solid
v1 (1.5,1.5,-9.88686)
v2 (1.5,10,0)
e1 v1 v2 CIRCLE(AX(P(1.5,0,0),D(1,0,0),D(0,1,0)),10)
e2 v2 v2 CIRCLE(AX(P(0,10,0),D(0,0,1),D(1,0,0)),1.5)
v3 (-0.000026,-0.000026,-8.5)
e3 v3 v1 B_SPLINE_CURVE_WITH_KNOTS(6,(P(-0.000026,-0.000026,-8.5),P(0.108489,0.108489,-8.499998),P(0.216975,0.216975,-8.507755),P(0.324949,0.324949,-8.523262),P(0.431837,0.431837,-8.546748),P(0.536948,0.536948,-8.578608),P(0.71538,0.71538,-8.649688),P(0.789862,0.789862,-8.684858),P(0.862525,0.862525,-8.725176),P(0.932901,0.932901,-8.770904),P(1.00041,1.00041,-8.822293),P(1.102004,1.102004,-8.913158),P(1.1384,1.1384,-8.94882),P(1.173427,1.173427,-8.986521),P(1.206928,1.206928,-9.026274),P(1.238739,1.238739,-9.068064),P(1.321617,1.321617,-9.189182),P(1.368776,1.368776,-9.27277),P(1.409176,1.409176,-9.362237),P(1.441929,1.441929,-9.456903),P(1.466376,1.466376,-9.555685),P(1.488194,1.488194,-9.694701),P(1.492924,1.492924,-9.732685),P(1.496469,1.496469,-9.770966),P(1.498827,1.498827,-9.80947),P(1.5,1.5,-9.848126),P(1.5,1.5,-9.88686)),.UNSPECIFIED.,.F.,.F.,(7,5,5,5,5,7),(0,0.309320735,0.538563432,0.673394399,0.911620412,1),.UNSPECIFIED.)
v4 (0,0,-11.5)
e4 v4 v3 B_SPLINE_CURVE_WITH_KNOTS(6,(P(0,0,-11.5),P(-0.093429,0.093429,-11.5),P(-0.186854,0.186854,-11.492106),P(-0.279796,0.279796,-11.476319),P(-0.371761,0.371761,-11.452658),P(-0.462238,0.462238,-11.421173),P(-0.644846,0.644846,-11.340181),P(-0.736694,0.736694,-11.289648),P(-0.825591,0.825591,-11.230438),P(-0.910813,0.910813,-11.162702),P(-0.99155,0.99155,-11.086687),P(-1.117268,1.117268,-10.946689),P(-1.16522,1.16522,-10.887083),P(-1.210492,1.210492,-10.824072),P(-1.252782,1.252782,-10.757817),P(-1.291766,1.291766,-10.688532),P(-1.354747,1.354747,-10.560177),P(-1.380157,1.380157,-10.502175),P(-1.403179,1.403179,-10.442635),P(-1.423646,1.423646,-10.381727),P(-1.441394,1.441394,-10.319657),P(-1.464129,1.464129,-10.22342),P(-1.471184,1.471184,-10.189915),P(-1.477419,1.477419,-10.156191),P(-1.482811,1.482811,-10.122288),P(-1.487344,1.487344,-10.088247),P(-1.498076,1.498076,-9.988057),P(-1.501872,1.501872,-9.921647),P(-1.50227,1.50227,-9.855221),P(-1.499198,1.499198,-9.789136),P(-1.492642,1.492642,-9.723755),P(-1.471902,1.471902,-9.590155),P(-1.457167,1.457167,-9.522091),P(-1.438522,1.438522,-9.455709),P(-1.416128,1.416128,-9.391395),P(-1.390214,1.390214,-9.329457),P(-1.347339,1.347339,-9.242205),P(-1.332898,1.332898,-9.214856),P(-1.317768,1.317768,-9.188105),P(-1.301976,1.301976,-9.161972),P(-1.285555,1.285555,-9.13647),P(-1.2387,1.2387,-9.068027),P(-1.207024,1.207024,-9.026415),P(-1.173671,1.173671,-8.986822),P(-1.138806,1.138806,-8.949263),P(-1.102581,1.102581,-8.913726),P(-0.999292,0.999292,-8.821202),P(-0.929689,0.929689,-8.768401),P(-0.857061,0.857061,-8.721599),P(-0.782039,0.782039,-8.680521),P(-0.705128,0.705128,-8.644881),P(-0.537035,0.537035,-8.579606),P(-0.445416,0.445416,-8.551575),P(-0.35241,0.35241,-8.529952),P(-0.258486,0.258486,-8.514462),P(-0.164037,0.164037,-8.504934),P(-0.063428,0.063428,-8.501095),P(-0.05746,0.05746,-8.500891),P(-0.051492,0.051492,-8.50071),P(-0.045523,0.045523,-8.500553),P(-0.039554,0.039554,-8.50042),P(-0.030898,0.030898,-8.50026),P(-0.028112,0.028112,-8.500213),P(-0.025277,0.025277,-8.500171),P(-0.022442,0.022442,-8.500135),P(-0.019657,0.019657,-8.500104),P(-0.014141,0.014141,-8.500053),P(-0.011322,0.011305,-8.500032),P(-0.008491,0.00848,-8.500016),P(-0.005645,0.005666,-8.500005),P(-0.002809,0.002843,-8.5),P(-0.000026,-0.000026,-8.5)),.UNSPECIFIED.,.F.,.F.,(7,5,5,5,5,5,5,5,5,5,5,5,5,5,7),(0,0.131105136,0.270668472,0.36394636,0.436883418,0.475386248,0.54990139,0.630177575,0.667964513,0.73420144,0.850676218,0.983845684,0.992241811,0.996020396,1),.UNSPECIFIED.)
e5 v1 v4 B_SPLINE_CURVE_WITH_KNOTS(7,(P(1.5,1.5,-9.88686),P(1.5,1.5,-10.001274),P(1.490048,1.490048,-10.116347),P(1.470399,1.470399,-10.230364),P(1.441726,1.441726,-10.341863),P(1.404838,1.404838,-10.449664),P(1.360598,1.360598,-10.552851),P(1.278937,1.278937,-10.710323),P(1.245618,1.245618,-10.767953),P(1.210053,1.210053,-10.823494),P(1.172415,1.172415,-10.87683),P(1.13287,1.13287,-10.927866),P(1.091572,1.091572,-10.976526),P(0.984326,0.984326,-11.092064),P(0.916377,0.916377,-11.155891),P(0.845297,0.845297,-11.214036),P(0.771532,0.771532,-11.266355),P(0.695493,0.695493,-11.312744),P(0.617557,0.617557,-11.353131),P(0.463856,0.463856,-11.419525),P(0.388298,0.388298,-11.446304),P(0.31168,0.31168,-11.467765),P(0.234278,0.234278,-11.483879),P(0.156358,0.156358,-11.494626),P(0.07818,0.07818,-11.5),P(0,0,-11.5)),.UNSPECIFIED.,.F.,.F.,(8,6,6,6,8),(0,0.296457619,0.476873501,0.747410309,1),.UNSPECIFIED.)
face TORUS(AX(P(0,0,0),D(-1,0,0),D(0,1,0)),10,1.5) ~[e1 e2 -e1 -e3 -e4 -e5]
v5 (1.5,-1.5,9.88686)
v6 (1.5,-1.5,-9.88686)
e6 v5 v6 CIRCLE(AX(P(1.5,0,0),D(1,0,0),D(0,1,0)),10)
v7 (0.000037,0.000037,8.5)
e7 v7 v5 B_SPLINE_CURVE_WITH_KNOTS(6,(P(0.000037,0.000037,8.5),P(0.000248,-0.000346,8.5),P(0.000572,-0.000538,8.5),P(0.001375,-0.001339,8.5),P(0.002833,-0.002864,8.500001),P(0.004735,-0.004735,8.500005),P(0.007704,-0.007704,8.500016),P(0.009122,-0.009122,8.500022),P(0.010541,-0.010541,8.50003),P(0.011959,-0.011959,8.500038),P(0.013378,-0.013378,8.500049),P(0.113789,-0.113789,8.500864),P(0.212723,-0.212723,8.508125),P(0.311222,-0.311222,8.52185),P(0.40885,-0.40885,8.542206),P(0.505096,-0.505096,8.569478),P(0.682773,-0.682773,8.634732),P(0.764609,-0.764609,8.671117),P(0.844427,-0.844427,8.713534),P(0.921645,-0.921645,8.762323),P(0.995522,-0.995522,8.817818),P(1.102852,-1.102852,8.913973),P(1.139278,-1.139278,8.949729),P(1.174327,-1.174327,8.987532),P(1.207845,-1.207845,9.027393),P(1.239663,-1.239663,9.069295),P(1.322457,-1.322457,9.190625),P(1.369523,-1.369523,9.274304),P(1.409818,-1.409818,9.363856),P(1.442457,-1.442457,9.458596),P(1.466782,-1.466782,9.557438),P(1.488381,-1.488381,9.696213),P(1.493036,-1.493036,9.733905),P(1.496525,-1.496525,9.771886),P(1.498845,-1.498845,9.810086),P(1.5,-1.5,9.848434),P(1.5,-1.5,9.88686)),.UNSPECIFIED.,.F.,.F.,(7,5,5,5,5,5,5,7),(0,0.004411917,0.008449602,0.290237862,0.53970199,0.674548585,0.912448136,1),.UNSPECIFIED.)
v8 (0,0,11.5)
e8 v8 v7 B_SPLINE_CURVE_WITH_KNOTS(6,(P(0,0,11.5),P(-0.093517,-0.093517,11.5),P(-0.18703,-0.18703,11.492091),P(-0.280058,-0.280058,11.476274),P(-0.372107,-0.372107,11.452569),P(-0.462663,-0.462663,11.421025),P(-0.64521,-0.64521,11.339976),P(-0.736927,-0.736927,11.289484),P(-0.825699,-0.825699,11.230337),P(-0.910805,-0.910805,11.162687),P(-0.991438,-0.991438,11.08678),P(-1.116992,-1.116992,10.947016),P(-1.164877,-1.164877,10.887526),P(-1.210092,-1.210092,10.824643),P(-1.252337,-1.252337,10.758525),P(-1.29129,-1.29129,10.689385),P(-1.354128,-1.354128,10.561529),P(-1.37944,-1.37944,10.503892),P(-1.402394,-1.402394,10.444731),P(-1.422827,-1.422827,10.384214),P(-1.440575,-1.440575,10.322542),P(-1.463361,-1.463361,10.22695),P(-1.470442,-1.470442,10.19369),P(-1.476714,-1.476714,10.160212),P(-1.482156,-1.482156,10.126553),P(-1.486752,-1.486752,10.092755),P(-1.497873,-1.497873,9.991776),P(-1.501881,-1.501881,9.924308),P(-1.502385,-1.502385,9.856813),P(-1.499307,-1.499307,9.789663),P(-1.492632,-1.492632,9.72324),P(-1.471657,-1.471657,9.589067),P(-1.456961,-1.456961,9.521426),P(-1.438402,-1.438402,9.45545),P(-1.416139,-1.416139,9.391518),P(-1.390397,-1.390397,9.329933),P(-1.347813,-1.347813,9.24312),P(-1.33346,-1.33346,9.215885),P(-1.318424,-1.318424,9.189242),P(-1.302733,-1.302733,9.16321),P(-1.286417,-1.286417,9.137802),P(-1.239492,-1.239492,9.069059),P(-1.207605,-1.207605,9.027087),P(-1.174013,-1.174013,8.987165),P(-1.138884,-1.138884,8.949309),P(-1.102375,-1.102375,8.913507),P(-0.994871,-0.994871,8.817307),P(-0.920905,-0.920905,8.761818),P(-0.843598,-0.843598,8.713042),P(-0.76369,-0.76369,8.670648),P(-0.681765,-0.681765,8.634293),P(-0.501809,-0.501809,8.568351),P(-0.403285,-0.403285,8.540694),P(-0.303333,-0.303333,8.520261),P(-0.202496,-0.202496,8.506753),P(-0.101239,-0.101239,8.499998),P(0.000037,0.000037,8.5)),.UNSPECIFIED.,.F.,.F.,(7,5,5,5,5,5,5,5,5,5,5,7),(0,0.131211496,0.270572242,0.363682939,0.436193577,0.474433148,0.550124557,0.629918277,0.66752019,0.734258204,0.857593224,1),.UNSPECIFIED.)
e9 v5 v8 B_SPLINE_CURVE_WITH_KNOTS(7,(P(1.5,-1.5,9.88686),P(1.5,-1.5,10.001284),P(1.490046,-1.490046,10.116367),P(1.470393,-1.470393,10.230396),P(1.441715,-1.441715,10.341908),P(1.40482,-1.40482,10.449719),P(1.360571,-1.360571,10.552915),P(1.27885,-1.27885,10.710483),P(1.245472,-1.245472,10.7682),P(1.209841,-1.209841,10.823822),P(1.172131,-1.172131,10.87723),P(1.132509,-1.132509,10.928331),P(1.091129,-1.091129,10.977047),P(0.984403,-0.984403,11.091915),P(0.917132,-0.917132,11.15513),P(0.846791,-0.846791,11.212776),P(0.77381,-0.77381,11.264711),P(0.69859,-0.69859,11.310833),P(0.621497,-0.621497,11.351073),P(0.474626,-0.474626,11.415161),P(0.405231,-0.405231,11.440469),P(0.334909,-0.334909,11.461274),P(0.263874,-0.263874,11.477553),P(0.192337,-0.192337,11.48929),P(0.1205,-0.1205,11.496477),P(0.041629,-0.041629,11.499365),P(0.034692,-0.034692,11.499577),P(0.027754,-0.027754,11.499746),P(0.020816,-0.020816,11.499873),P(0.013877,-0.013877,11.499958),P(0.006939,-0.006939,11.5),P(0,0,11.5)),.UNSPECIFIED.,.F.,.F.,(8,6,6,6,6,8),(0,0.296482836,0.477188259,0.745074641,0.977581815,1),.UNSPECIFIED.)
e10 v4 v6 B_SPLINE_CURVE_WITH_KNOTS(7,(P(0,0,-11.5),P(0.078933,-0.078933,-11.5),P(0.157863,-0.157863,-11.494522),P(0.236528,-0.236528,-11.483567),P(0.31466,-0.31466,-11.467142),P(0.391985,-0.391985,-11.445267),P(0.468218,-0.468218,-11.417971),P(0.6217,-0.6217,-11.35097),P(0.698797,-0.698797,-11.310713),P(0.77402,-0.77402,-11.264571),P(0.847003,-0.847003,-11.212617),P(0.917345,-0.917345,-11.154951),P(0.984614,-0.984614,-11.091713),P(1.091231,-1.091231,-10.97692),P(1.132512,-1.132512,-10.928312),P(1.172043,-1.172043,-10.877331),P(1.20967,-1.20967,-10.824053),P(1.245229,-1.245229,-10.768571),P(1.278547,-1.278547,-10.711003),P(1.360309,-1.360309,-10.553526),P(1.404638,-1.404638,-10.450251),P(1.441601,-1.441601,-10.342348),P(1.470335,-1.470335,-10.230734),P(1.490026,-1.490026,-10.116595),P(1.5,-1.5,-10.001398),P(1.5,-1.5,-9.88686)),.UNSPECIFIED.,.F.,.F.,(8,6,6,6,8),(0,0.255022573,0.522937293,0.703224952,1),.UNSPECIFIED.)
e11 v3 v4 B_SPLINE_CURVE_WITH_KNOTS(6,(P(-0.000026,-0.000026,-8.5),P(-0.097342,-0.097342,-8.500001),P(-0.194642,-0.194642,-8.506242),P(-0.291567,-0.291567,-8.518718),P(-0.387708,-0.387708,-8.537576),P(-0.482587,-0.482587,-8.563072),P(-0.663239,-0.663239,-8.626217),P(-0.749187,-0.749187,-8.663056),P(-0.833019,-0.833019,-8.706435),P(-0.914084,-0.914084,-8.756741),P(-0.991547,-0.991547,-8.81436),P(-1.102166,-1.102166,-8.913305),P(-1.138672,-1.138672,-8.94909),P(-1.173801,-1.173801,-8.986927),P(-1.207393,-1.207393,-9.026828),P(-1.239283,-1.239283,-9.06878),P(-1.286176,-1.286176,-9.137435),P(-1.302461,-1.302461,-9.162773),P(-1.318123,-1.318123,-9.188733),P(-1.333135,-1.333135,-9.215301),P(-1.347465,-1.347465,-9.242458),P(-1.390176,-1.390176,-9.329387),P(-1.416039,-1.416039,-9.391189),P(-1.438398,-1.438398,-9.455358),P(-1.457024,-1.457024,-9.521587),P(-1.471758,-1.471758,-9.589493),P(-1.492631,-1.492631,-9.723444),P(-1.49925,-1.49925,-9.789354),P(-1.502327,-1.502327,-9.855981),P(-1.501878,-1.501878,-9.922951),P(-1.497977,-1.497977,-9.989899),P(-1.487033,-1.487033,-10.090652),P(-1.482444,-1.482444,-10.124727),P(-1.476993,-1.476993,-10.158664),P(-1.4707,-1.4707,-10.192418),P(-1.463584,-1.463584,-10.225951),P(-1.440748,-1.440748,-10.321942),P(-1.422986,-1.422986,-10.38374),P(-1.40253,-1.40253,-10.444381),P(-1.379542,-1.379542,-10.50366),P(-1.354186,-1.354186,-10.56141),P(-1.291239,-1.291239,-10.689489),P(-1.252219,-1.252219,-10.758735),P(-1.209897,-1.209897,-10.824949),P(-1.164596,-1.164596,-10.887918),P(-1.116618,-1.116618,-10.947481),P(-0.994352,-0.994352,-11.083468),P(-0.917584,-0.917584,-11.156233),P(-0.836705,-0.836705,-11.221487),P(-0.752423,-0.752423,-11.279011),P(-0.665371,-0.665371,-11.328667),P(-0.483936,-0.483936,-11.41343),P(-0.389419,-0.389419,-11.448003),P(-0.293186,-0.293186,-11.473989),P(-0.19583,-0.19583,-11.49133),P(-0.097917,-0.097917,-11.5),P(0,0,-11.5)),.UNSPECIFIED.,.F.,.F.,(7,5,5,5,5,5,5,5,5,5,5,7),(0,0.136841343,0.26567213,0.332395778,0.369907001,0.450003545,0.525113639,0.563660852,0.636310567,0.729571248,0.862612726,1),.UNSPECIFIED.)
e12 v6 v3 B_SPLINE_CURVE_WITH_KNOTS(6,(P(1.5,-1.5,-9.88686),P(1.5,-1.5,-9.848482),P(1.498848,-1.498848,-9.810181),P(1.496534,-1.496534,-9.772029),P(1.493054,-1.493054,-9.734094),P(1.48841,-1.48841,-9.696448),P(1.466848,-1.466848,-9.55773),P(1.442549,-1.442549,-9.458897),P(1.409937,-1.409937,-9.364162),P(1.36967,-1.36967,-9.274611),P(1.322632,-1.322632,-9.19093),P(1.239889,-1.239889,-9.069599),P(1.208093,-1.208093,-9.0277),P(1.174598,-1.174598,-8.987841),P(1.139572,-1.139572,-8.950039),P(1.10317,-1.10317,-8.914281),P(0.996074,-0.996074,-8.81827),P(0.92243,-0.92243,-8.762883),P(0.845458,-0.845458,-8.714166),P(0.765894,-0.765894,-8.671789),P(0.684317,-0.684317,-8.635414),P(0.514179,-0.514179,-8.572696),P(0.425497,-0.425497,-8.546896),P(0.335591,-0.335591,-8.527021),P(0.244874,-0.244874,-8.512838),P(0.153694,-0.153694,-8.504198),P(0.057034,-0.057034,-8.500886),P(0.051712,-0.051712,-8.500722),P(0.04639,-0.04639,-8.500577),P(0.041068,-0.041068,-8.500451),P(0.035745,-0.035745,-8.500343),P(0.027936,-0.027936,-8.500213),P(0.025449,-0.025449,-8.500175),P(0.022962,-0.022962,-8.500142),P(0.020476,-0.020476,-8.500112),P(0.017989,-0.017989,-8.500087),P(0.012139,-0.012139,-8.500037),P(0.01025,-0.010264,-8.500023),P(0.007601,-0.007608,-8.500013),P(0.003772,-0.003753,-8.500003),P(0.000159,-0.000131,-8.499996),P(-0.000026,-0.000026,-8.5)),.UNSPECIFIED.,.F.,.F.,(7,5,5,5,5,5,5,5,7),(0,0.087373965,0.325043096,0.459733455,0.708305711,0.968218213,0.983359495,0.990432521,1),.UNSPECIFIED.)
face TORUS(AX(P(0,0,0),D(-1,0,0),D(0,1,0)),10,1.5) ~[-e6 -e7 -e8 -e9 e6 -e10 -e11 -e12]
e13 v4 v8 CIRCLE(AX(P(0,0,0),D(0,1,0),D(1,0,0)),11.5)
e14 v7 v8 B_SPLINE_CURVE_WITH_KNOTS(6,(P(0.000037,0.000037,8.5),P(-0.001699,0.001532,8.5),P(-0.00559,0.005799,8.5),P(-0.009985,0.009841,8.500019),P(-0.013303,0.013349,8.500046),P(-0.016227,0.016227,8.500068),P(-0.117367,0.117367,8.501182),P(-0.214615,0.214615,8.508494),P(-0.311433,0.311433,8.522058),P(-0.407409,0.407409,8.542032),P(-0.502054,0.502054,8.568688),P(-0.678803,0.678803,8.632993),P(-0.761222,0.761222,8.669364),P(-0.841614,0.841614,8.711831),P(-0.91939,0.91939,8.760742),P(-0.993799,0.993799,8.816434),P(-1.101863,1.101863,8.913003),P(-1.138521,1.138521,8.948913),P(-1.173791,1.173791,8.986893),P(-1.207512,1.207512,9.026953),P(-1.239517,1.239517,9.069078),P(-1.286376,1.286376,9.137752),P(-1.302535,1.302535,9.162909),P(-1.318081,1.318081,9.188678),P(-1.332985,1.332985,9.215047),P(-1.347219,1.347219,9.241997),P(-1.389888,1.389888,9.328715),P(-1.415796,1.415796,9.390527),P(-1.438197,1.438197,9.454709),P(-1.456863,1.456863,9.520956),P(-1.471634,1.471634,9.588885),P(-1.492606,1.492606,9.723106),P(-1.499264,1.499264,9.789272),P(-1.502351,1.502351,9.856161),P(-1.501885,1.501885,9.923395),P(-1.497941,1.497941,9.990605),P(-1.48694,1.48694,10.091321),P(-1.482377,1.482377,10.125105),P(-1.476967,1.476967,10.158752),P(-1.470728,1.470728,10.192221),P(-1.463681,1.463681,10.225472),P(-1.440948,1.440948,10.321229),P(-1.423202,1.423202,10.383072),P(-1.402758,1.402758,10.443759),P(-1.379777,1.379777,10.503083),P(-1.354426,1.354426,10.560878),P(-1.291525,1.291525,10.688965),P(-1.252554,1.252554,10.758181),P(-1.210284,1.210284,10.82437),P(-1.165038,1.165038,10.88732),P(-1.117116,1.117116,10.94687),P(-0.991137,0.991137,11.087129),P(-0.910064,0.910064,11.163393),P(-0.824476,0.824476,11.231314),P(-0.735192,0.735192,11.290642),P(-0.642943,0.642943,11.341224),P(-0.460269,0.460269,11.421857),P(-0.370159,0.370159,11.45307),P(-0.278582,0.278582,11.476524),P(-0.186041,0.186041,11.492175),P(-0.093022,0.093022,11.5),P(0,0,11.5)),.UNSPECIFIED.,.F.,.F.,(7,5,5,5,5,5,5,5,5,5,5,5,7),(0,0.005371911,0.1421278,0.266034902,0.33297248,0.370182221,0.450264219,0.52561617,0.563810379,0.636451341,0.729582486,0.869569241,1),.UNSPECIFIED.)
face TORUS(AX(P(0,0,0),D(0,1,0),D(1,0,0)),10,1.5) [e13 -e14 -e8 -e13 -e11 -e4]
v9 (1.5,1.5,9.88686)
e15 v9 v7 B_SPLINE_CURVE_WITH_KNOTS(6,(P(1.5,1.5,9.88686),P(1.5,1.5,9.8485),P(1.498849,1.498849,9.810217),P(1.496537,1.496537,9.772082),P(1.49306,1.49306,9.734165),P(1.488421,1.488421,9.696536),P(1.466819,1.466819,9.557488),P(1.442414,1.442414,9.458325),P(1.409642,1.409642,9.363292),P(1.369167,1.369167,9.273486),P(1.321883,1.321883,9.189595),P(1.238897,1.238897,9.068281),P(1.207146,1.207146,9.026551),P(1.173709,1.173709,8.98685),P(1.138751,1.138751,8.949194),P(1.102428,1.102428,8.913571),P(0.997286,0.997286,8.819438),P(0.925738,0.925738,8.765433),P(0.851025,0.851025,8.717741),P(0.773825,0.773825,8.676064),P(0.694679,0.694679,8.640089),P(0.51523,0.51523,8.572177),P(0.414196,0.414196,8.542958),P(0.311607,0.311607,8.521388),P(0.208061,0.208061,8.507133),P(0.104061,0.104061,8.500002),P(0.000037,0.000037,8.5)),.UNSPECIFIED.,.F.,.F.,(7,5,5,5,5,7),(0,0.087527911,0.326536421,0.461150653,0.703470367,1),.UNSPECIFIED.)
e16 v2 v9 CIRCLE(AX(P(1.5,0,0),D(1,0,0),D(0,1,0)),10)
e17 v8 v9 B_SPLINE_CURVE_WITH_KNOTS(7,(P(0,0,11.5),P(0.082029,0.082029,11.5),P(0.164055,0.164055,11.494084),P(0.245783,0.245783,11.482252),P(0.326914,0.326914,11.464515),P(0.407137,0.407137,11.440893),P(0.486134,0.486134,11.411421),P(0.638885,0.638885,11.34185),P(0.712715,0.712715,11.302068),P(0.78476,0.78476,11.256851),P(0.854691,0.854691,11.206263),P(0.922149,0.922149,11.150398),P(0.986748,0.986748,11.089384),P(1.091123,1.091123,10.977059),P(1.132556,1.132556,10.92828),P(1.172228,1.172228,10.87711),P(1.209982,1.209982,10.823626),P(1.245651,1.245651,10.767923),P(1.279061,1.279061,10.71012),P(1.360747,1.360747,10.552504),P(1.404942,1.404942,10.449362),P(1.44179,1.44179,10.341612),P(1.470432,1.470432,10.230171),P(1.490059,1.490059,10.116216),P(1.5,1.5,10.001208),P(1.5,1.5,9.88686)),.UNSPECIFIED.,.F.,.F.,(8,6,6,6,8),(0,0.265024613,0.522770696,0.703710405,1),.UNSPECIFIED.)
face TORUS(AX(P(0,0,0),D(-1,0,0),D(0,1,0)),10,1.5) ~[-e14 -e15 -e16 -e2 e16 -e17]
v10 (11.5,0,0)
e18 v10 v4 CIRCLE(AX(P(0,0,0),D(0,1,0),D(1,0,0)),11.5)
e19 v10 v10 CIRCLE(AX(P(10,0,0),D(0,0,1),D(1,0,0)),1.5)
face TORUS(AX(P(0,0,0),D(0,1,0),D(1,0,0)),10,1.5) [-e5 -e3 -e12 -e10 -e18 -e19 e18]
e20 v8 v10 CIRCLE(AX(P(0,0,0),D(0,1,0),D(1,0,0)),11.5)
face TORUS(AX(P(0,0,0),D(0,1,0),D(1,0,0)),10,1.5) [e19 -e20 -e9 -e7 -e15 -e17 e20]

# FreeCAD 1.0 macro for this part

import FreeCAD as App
import Part
import Sketcher
from FreeCAD import Vector
Q = App.Units.Quantity

doc = App.newDocument("Part")
params = doc.addObject("Spreadsheet::Sheet", "Params")
for row, (alias, value) in enumerate([
    ("sketch1_diameter", "3 mm"),
    ("revolution_angle", "360 deg"),
    ("sketch2_diameter", "3 mm"),
    ("revolution2_angle", "360 deg"),
    ("sketch3_diameter", "3 mm"),
    ("revolution3_angle", "360 deg"),
], start=1):
    params.set(f"A{row}", alias)
    params.set(f"B{row}", "=" + value)
    params.setAlias(f"B{row}", alias)

body = doc.addObject("PartDesign::Body", "Body")

sketch1 = body.newObject("Sketcher::SketchObject", "Sketch")
sketch1.AttachmentSupport = (doc.getObject("XY_Plane"), [""])
sketch1.MapMode = "FlatFace"
sketch1.addGeometry(Part.Circle(Vector(10, 0, 0), Vector(0, 0, 1), 1.5), False)
sketch1.addConstraint([
    Sketcher.Constraint("PointOnObject", 0, 3, -1),
    Sketcher.Constraint("Diameter", 0, Q("3 mm")),
    Sketcher.Constraint("DistanceX", -1, 1, 0, 3, Q("10 mm")),
])
sketch1.setExpression("Constraints[1]", "Params.sketch1_diameter")
revolution = body.newObject("PartDesign::Revolution", "Revolution")
revolution.Profile = sketch1
revolution.ReferenceAxis = (sketch1, ["V_Axis"])
revolution.setExpression("Angle", "Params.revolution_angle")

sketch2 = body.newObject("Sketcher::SketchObject", "Sketch001")
sketch2.AttachmentSupport = (doc.getObject("XY_Plane"), [""])
sketch2.MapMode = "FlatFace"
sketch2.addGeometry(Part.Circle(Vector(10, 0, 0), Vector(0, 0, 1), 1.5), False)
sketch2.addConstraint([
    Sketcher.Constraint("PointOnObject", 0, 3, -1),
    Sketcher.Constraint("Diameter", 0, Q("3 mm")),
    Sketcher.Constraint("DistanceX", -1, 1, 0, 3, Q("10 mm")),
])
sketch2.setExpression("Constraints[1]", "Params.sketch2_diameter")
revolution2 = body.newObject("PartDesign::Revolution", "Revolution001")
revolution2.Profile = sketch2
revolution2.ReferenceAxis = (sketch2, ["V_Axis"])
revolution2.setExpression("Angle", "Params.revolution2_angle")

sketch3 = body.newObject("Sketcher::SketchObject", "Sketch002")
sketch3.AttachmentSupport = (doc.getObject("XY_Plane"), [""])
sketch3.MapMode = "FlatFace"
sketch3.addGeometry(Part.Circle(Vector(0, 10, 0), Vector(0, 0, 1), 1.5), False)
sketch3.addConstraint([
    Sketcher.Constraint("PointOnObject", 0, 3, -2),
    Sketcher.Constraint("Diameter", 0, Q("3 mm")),
    Sketcher.Constraint("DistanceY", -1, 1, 0, 3, Q("10 mm")),
])
sketch3.setExpression("Constraints[1]", "Params.sketch3_diameter")
revolution3 = body.newObject("PartDesign::Revolution", "Revolution002")
revolution3.Profile = sketch3
revolution3.ReferenceAxis = (sketch3, ["H_Axis"])
revolution3.setExpression("Angle", "Params.revolution3_angle")

doc.recompute()
